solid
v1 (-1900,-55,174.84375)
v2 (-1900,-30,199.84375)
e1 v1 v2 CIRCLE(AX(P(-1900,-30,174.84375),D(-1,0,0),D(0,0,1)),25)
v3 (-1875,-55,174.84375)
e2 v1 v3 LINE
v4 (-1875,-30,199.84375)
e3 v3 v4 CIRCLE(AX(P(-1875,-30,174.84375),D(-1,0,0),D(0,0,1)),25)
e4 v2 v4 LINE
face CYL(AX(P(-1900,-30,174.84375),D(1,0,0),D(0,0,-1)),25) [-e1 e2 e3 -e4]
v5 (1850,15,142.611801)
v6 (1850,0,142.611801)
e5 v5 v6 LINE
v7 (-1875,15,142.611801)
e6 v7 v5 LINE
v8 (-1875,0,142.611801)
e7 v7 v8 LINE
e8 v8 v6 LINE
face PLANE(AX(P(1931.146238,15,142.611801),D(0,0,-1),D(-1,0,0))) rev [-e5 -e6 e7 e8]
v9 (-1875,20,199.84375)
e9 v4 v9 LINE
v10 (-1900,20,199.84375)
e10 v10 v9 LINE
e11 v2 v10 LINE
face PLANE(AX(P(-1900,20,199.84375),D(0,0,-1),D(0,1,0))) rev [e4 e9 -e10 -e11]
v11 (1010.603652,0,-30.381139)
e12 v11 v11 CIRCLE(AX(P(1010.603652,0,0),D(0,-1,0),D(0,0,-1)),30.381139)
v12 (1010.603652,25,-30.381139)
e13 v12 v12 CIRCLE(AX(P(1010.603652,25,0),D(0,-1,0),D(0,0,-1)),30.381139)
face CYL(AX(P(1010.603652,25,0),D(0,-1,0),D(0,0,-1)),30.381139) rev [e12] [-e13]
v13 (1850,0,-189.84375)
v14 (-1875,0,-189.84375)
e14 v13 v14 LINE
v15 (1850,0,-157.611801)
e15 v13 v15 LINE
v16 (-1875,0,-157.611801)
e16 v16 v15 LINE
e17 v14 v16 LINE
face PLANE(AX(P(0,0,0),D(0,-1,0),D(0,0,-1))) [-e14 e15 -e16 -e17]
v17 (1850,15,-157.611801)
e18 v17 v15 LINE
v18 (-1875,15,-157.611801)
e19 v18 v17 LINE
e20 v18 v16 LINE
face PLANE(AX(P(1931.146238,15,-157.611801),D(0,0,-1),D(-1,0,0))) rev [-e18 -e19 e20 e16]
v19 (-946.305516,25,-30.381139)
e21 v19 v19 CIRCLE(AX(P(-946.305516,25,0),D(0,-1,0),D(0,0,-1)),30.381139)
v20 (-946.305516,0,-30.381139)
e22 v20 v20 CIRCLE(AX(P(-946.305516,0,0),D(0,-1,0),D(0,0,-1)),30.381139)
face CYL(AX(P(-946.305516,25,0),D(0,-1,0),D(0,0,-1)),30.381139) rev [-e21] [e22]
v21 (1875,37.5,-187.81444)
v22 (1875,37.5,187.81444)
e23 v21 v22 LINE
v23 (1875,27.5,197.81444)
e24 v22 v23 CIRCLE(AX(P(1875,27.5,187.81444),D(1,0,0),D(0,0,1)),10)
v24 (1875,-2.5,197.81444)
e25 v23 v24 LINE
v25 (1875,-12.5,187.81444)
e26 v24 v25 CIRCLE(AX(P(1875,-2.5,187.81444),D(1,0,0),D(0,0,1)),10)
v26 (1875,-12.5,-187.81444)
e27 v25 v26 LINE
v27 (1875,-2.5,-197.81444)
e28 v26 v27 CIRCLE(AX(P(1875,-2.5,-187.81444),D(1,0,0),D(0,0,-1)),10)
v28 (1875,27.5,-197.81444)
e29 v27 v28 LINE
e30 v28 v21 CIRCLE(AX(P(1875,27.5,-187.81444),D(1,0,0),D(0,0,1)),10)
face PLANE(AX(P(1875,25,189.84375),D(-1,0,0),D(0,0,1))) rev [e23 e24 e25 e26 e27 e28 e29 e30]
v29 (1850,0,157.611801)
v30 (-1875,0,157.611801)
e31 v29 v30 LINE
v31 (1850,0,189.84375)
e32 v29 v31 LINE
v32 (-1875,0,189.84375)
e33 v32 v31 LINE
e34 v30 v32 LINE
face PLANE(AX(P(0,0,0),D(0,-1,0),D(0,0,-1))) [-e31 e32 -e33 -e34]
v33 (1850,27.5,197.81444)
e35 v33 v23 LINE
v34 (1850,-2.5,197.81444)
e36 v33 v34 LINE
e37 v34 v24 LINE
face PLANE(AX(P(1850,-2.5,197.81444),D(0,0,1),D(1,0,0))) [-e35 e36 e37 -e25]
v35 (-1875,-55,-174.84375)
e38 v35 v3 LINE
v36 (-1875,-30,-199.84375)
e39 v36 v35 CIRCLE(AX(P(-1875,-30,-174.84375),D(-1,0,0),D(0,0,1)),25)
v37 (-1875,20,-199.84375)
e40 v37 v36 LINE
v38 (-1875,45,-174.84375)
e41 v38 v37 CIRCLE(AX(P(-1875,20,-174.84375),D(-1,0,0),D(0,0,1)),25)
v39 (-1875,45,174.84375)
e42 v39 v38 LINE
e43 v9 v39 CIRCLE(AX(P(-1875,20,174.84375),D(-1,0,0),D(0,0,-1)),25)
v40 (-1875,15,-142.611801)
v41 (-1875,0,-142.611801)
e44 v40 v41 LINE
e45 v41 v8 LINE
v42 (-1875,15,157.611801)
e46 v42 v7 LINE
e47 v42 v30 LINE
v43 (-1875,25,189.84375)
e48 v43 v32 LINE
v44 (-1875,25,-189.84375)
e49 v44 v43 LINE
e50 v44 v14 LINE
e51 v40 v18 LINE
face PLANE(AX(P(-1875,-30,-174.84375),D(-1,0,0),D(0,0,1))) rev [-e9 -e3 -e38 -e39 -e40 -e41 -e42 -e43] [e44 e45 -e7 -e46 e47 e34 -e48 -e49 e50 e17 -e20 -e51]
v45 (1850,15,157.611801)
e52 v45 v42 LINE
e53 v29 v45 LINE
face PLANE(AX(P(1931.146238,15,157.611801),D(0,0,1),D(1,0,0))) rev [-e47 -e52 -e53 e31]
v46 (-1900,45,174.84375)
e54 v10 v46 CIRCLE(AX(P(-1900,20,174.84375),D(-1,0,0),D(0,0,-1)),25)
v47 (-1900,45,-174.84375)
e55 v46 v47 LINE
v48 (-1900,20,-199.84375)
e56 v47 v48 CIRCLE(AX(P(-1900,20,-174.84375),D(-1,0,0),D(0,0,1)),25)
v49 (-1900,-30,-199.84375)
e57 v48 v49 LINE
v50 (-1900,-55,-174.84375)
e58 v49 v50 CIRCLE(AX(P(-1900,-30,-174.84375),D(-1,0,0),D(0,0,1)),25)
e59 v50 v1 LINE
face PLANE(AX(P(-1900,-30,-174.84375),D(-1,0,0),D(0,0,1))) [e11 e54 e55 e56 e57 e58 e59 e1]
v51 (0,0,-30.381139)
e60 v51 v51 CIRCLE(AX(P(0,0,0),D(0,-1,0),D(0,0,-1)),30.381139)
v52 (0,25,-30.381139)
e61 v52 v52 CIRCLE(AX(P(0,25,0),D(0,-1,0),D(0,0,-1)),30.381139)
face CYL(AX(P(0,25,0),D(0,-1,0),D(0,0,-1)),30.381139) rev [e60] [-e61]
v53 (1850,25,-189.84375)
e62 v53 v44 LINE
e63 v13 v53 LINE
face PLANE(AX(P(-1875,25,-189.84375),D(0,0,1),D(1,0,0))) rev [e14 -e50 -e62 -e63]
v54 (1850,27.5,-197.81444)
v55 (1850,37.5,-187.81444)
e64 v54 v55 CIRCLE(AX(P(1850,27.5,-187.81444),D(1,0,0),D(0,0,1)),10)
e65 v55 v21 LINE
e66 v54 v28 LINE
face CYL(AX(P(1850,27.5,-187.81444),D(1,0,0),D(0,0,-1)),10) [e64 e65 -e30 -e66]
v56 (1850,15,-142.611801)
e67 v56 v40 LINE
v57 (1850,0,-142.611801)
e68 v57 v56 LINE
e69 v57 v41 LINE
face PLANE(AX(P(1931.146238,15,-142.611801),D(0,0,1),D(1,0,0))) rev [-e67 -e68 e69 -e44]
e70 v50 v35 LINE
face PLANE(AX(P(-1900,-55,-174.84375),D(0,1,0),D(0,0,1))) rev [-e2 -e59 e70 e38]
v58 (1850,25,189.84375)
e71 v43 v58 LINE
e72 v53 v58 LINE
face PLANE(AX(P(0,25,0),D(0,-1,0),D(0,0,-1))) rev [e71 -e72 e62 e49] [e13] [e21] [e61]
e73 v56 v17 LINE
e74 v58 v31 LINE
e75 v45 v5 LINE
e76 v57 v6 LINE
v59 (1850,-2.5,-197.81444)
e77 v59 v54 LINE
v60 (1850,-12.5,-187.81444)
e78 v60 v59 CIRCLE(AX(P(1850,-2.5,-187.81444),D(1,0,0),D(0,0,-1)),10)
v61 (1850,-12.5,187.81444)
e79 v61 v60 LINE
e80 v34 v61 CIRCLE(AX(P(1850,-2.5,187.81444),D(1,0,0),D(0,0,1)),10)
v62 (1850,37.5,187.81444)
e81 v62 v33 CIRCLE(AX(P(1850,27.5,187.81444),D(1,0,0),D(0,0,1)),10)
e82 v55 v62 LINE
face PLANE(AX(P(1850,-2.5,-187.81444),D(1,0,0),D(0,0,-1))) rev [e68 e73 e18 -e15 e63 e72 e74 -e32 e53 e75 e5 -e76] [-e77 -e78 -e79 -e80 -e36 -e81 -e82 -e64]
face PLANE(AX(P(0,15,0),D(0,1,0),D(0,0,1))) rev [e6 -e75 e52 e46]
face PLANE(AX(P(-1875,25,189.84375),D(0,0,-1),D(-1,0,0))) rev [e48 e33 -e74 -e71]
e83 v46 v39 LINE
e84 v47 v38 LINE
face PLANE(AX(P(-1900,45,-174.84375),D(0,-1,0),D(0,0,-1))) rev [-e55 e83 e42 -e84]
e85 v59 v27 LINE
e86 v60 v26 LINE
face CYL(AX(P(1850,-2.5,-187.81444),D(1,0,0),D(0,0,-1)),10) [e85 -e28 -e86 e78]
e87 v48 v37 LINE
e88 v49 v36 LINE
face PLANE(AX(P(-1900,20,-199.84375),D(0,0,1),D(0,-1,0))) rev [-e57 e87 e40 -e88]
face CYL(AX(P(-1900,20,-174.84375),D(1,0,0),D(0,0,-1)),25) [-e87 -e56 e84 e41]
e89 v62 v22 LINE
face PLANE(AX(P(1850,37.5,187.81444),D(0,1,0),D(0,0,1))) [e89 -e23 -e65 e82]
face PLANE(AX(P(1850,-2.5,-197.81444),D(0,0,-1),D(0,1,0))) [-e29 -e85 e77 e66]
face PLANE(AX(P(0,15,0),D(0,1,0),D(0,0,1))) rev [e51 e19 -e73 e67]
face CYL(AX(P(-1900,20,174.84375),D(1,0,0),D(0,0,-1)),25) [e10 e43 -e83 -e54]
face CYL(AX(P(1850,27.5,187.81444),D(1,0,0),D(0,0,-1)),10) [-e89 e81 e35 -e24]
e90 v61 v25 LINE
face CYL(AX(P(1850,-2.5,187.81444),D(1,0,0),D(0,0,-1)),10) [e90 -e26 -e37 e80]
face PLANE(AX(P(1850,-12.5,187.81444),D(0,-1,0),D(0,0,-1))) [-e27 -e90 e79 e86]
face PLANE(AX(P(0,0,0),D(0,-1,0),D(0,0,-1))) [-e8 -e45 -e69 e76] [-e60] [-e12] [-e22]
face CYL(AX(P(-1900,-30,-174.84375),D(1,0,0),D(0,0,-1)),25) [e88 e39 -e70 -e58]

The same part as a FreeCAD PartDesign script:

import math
import FreeCAD as App
import Part
import Sketcher

V = App.Vector


def add_polygon(sketch, points):
    """Adds a closed chain of lines whose ends are joined by coincident constraints."""
    first, n = sketch.GeometryCount, len(points)
    for a, b in zip(points, points[1:] + points[:1]):
        sketch.addGeometry(Part.LineSegment(App.Vector(*a, 0), App.Vector(*b, 0)), False)
    for i in range(n):
        sketch.addConstraint(Sketcher.Constraint("Coincident", first + i, 2, first + (i + 1) % n, 1))

doc = App.newDocument("Part")
body = doc.addObject("PartDesign::Body", "Body")

# Sketch on XZ plane
sketch1 = body.newObject("Sketcher::SketchObject", "Sketch")
sketch1.AttachmentSupport = (doc.getObject("XZ_Plane"), [""])
sketch1.MapMode = "FlatFace"
add_polygon(sketch1, [(-1875, -190), (-1875, 190), (1875, 190), (1875, -190)])  # lines 0-3
sketch1.addConstraint([
    Sketcher.Constraint("Vertical", 0),
    Sketcher.Constraint("Horizontal", 1),
    Sketcher.Constraint("Vertical", 2),
    Sketcher.Constraint("Horizontal", 3),
    Sketcher.Constraint("Symmetric", 0, 2, 2, 2, -1, 1),
    Sketcher.Constraint("DistanceX", 1, 1, 1, 2, 3750.0),
    Sketcher.Constraint("DistanceY", 0, 1, 0, 2, 379.6875),
])
pad1 = body.newObject("PartDesign::Pad", "Pad")
pad1.Profile = sketch1
pad1.Length = 25
pad1.Reversed = True

# Sketch on XZ plane
sketch2 = body.newObject("Sketcher::SketchObject", "Sketch001")
sketch2.AttachmentSupport = (doc.getObject("XZ_Plane"), [""])
sketch2.MapMode = "FlatFace"
add_polygon(sketch2, [(-1875, 158), (-1875, 143), (1931, 143), (1931, 158)])  # lines 0-3
add_polygon(sketch2, [(-1875, -143), (-1875, -158), (1931, -158), (1931, -143)])  # lines 4-7
sketch2.addConstraint([
    Sketcher.Constraint("Vertical", 0),
    Sketcher.Constraint("Horizontal", 1),
    Sketcher.Constraint("Vertical", 2),
    Sketcher.Constraint("Horizontal", 3),
    Sketcher.Constraint("Vertical", 4),
    Sketcher.Constraint("Horizontal", 5),
    Sketcher.Constraint("Vertical", 6),
    Sketcher.Constraint("Horizontal", 7),
    Sketcher.Constraint("Symmetric", 3, 2, 4, 2, -1),
    Sketcher.Constraint("Symmetric", 1, 2, 6, 2, -1),
    Sketcher.Constraint("DistanceY", 0, 2, 0, 1, 15.0),
    Sketcher.Constraint("DistanceX", 0, 2, -1, 1, 1875.0),
    Sketcher.Constraint("DistanceX", 1, 1, 1, 2, 3806.146238),
    Sketcher.Constraint("DistanceY", -1, 1, 0, 2, 142.611801),
])
pocket1 = body.newObject("PartDesign::Pocket", "Pocket")
pocket1.Profile = sketch2
pocket1.Length = 15

# Sketch on XZ plane
sketch3 = body.newObject("Sketcher::SketchObject", "Sketch002")
sketch3.AttachmentSupport = (doc.getObject("XZ_Plane"), [""])
sketch3.MapMode = "FlatFace"
sketch3.addGeometry([
    Part.Circle(V(0, 0, 0), V(0, 0, 1), 30),
    Part.Circle(V(-946, 0, 0), V(0, 0, 1), 30),
    Part.Circle(V(1011, 0, 0), V(0, 0, 1), 30),
], False)
sketch3.addConstraint([
    Sketcher.Constraint("Coincident", 0, 3, -1, 1),
    Sketcher.Constraint("Equal", 0, 1),
    Sketcher.Constraint("Equal", 1, 2),
    Sketcher.Constraint("PointOnObject", 1, 3, -1),
    Sketcher.Constraint("PointOnObject", 2, 3, -1),
    Sketcher.Constraint("Diameter", 0, 60.762278),
    Sketcher.Constraint("DistanceX", -1, 1, 2, 3, 1010.603652),
    Sketcher.Constraint("DistanceX", 1, 3, -1, 1, 946.305516),
])
pocket2 = body.newObject("PartDesign::Pocket", "Pocket001")
pocket2.Profile = sketch3
pocket2.Type = "ThroughAll"

# Sketch on YZ plane
sketch4 = body.newObject("Sketcher::SketchObject", "Sketch003")
sketch4.AttachmentSupport = (doc.getObject("YZ_Plane"), [""])
sketch4.MapMode = "FlatFace"
sketch4.AttachmentOffset = App.Placement(V(0, 0, 1875), App.Rotation())
sketch4.addGeometry([
    Part.LineSegment(V(-12, 188, 0), V(-12, -188, 0)),  # 0
    Part.ArcOfCircle(Part.Circle(V(-2, -188, 0), V(0, 0, 1), 10), math.radians(180), math.radians(270)),  # 1
    Part.LineSegment(V(-2, -198, 0), V(28, -198, 0)),  # 2
    Part.ArcOfCircle(Part.Circle(V(28, -188, 0), V(0, 0, 1), 10), math.radians(-90), math.radians(0)),  # 3
    Part.LineSegment(V(38, -188, 0), V(38, 188, 0)),  # 4
    Part.ArcOfCircle(Part.Circle(V(28, 188, 0), V(0, 0, 1), 10), math.radians(0), math.radians(90)),  # 5
    Part.LineSegment(V(28, 198, 0), V(-2, 198, 0)),  # 6
    Part.ArcOfCircle(Part.Circle(V(-2, 188, 0), V(0, 0, 1), 10), math.radians(90), math.radians(180)),  # 7
], False)
sketch4.addConstraint([
    Sketcher.Constraint("Tangent", 0, 2, 1, 1),
    Sketcher.Constraint("Tangent", 1, 2, 2, 1),
    Sketcher.Constraint("Tangent", 2, 2, 3, 1),
    Sketcher.Constraint("Tangent", 3, 2, 4, 1),
    Sketcher.Constraint("Tangent", 4, 2, 5, 1),
    Sketcher.Constraint("Tangent", 5, 2, 6, 1),
    Sketcher.Constraint("Tangent", 6, 2, 7, 1),
    Sketcher.Constraint("Tangent", 7, 2, 0, 1),
    Sketcher.Constraint("Vertical", 0),
    Sketcher.Constraint("Horizontal", 2),
    Sketcher.Constraint("Vertical", 4),
    Sketcher.Constraint("Horizontal", 6),
    Sketcher.Constraint("Equal", 1, 3),
    Sketcher.Constraint("Equal", 3, 5),
    Sketcher.Constraint("Equal", 5, 7),
    Sketcher.Constraint("Radius", 1, 10.0),
    Sketcher.Constraint("DistanceX", 2, 1, 2, 2, 30.0),
    Sketcher.Constraint("DistanceX", 1, 3, -1, 1, 2.5),
    Sketcher.Constraint("DistanceY", 0, 2, 0, 1, 375.62888),
    Sketcher.Constraint("DistanceY", 1, 3, -1, 1, 187.81444),
])
pad2 = body.newObject("PartDesign::Pad", "Pad001")
pad2.Profile = sketch4
pad2.Length = 25
pad2.Reversed = True

# Sketch on YZ plane
sketch5 = body.newObject("Sketcher::SketchObject", "Sketch004")
sketch5.AttachmentSupport = (doc.getObject("YZ_Plane"), [""])
sketch5.MapMode = "FlatFace"
sketch5.AttachmentOffset = App.Placement(V(0, 0, -1875), App.Rotation())
sketch5.addGeometry([
    Part.LineSegment(V(45, 175, 0), V(45, -175, 0)),  # 0
    Part.ArcOfCircle(Part.Circle(V(20, -175, 0), V(0, 0, 1), 25), math.radians(-90), math.radians(0)),  # 1
    Part.LineSegment(V(20, -200, 0), V(-30, -200, 0)),  # 2
    Part.ArcOfCircle(Part.Circle(V(-30, -175, 0), V(0, 0, 1), 25), math.radians(180), math.radians(270)),  # 3
    Part.LineSegment(V(-55, -175, 0), V(-55, 175, 0)),  # 4
    Part.ArcOfCircle(Part.Circle(V(-30, 175, 0), V(0, 0, 1), 25), math.radians(90), math.radians(180)),  # 5
    Part.LineSegment(V(-30, 200, 0), V(20, 200, 0)),  # 6
    Part.ArcOfCircle(Part.Circle(V(20, 175, 0), V(0, 0, 1), 25), math.radians(0), math.radians(90)),  # 7
], False)
sketch5.addConstraint([
    Sketcher.Constraint("Tangent", 0, 2, 1, 2),
    Sketcher.Constraint("Tangent", 1, 1, 2, 1),
    Sketcher.Constraint("Tangent", 2, 2, 3, 2),
    Sketcher.Constraint("Tangent", 3, 1, 4, 1),
    Sketcher.Constraint("Tangent", 4, 2, 5, 2),
    Sketcher.Constraint("Tangent", 5, 1, 6, 1),
    Sketcher.Constraint("Tangent", 6, 2, 7, 2),
    Sketcher.Constraint("Tangent", 7, 1, 0, 1),
    Sketcher.Constraint("Vertical", 0),
    Sketcher.Constraint("Horizontal", 2),
    Sketcher.Constraint("Vertical", 4),
    Sketcher.Constraint("Horizontal", 6),
    Sketcher.Constraint("Equal", 1, 3),
    Sketcher.Constraint("Equal", 3, 5),
    Sketcher.Constraint("Equal", 5, 7),
    Sketcher.Constraint("Radius", 1, 25.0),
    Sketcher.Constraint("DistanceX", 2, 2, 2, 1, 50.0),
    Sketcher.Constraint("DistanceX", -1, 1, 1, 3, 20.0),
    Sketcher.Constraint("DistanceY", 0, 2, 0, 1, 349.6875),
    Sketcher.Constraint("DistanceY", 1, 3, -1, 1, 174.84375),
])
pad3 = body.newObject("PartDesign::Pad", "Pad002")
pad3.Profile = sketch5
pad3.Length = 25
pad3.Reversed = True

doc.recompute()
